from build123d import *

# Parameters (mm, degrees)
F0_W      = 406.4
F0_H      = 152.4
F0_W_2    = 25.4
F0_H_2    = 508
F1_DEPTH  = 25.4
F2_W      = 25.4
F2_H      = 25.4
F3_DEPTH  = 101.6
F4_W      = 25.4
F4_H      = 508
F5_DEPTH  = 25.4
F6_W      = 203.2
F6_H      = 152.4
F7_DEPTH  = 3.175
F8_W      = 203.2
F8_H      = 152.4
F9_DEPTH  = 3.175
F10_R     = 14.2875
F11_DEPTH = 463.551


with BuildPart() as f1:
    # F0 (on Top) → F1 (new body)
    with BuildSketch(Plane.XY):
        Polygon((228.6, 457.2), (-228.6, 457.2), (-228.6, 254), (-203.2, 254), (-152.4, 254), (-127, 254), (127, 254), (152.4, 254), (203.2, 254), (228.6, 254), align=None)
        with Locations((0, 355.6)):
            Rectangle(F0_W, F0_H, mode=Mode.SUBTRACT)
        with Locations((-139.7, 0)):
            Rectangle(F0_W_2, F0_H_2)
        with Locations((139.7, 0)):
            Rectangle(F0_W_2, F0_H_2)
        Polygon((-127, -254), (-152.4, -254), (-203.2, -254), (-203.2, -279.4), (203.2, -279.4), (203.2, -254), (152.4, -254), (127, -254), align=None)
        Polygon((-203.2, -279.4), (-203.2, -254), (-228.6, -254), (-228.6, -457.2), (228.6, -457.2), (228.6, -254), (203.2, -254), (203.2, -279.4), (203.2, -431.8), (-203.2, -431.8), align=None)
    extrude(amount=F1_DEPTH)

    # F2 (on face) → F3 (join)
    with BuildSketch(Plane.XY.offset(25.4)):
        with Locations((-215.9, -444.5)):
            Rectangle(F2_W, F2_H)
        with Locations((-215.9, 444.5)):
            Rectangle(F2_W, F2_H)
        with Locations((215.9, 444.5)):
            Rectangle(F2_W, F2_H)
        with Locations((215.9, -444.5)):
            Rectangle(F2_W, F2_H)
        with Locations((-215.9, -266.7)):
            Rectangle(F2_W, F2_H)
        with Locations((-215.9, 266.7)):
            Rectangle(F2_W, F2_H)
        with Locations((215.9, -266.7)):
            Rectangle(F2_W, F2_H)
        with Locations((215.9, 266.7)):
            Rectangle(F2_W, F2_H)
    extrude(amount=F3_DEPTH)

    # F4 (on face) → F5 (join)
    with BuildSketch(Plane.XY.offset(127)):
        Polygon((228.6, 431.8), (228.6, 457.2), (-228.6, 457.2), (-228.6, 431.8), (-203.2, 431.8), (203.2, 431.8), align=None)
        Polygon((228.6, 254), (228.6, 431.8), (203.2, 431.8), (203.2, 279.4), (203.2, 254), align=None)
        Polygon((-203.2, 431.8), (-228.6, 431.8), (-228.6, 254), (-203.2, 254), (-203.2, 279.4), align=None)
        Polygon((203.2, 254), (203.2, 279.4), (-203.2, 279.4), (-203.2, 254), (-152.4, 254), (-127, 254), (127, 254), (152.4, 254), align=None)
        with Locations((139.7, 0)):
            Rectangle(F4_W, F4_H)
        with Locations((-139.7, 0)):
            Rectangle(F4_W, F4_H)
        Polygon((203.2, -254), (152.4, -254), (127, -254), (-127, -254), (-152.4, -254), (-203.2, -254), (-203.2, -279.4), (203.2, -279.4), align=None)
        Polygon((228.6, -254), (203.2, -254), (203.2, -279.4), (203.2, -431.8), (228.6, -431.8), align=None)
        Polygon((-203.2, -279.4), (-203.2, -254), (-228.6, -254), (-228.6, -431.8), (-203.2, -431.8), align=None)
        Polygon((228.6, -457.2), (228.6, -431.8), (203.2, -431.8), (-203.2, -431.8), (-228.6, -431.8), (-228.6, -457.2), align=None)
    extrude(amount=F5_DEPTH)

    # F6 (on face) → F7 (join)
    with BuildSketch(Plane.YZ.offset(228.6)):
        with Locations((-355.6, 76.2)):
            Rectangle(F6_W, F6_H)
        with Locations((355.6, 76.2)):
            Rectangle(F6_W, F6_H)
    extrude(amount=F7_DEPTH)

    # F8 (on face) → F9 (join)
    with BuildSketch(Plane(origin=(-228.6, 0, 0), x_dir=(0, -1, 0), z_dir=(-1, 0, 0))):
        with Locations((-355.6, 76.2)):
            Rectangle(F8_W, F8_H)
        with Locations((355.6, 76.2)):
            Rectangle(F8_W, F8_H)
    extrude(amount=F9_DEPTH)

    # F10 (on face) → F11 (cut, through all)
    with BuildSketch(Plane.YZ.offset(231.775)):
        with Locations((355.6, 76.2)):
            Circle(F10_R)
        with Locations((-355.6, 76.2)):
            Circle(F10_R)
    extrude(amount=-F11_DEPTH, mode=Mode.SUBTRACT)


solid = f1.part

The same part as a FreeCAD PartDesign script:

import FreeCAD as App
import Part
import Sketcher
Q = App.Units.Quantity


def add_polygon(sketch, points):
    """Adds a closed chain of lines whose ends are joined by coincident constraints."""
    first, n = sketch.GeometryCount, len(points)
    for a, b in zip(points, points[1:] + points[:1]):
        sketch.addGeometry(Part.LineSegment(App.Vector(*a, 0), App.Vector(*b, 0)), False)
    for i in range(n):
        sketch.addConstraint(Sketcher.Constraint("Coincident", first + i, 2, first + (i + 1) % n, 1))

doc = App.newDocument("Part")
body = doc.addObject("PartDesign::Body", "Body")

# Sketch on XY plane
sketch1 = body.newObject("Sketcher::SketchObject", "Sketch")
sketch1.AttachmentSupport = (doc.getObject("XY_Plane"), [""])
sketch1.MapMode = "FlatFace"
add_polygon(sketch1, [(229, 254), (229, 457), (-229, 457), (-229, 254), (-152, 254), (-152, -254), (-229, -254), (-229, -457), (229, -457), (229, -254), (152, -254), (152, 254)])  # lines 0-11
add_polygon(sketch1, [(203, -279), (203, -432), (-203, -432), (-203, -279)])  # lines 12-15
add_polygon(sketch1, [(-127, 254), (127, 254), (127, -254), (-127, -254)])  # lines 16-19
add_polygon(sketch1, [(203, 279), (-203, 279), (-203, 432), (203, 432)])  # lines 20-23
sketch1.addConstraint([
    Sketcher.Constraint("Vertical", 0),
    Sketcher.Constraint("Horizontal", 1),
    Sketcher.Constraint("Vertical", 2),
    Sketcher.Constraint("Horizontal", 3),
    Sketcher.Constraint("Vertical", 4),
    Sketcher.Constraint("Horizontal", 5),
    Sketcher.Constraint("Vertical", 6),
    Sketcher.Constraint("Horizontal", 7),
    Sketcher.Constraint("Vertical", 8),
    Sketcher.Constraint("Horizontal", 9),
    Sketcher.Constraint("Vertical", 10),
    Sketcher.Constraint("Horizontal", 11),
    Sketcher.Constraint("Vertical", 12),
    Sketcher.Constraint("Horizontal", 13),
    Sketcher.Constraint("Vertical", 14),
    Sketcher.Constraint("Horizontal", 15),
    Sketcher.Constraint("Horizontal", 16),
    Sketcher.Constraint("Vertical", 17),
    Sketcher.Constraint("Horizontal", 18),
    Sketcher.Constraint("Vertical", 19),
    Sketcher.Constraint("Horizontal", 20),
    Sketcher.Constraint("Vertical", 21),
    Sketcher.Constraint("Horizontal", 22),
    Sketcher.Constraint("Vertical", 23),
    Sketcher.Constraint("Symmetric", 0, 2, 6, 2, -1, 1),
    Sketcher.Constraint("Symmetric", 2, 2, 8, 2, -1, 1),
    Sketcher.Constraint("Symmetric", 4, 2, 10, 2, -1, 1),
    Sketcher.Constraint("Symmetric", 16, 2, 18, 2, -1, 1),
    Sketcher.Constraint("Symmetric", 15, 2, 20, 2, -1, 1),
    Sketcher.Constraint("Symmetric", 13, 2, 22, 2, -1, 1),
    Sketcher.Constraint("Symmetric", 5, 2, 8, 2, -2),
    Sketcher.Constraint("Horizontal", 11, 2, 16, 2),
    Sketcher.Constraint("Vertical", 14, 2, 20, 2),
    Sketcher.Constraint("DistanceX", 1, 2, 1, 1, Q("18 in")),
    Sketcher.Constraint("DistanceX", 3, 1, 3, 2, Q("3 in")),
    Sketcher.Constraint("DistanceX", 13, 2, 13, 1, Q("16 in")),
    Sketcher.Constraint("DistanceX", 16, 1, 16, 2, Q("10 in")),
    Sketcher.Constraint("DistanceY", 0, 1, 0, 2, Q("8 in")),
    Sketcher.Constraint("DistanceY", 4, 2, 4, 1, Q("20 in")),
    Sketcher.Constraint("DistanceY", 12, 2, 12, 1, Q("6 in")),
    Sketcher.Constraint("DistanceY", 12, 2, -1, 1, Q("17 in")),
])
pad1 = body.newObject("PartDesign::Pad", "Pad")
pad1.Profile = sketch1
pad1.Length = Q("1 in")

# Sketch on XY plane
sketch2 = body.newObject("Sketcher::SketchObject", "Sketch001")
sketch2.AttachmentSupport = (doc.getObject("XY_Plane"), [""])
sketch2.MapMode = "FlatFace"
sketch2.AttachmentOffset = App.Placement(App.Vector(0, 0, 1 * 25.4), App.Rotation())
add_polygon(sketch2, [(-229, -432), (-229, -457), (-203, -457), (-203, -432)])  # lines 0-3
add_polygon(sketch2, [(-229, 457), (-229, 432), (-203, 432), (-203, 457)])  # lines 4-7
add_polygon(sketch2, [(203, 457), (203, 432), (229, 432), (229, 457)])  # lines 8-11
add_polygon(sketch2, [(203, -432), (203, -457), (229, -457), (229, -432)])  # lines 12-15
add_polygon(sketch2, [(-229, -254), (-229, -279), (-203, -279), (-203, -254)])  # lines 16-19
add_polygon(sketch2, [(-229, 279), (-229, 254), (-203, 254), (-203, 279)])  # lines 20-23
add_polygon(sketch2, [(203, -254), (203, -279), (229, -279), (229, -254)])  # lines 24-27
add_polygon(sketch2, [(203, 279), (203, 254), (229, 254), (229, 279)])  # lines 28-31
sketch2.addConstraint([
    Sketcher.Constraint("Vertical", 0),
    Sketcher.Constraint("Horizontal", 1),
    Sketcher.Constraint("Vertical", 2),
    Sketcher.Constraint("Horizontal", 3),
    Sketcher.Constraint("Vertical", 4),
    Sketcher.Constraint("Horizontal", 5),
    Sketcher.Constraint("Vertical", 6),
    Sketcher.Constraint("Horizontal", 7),
    Sketcher.Constraint("Vertical", 8),
    Sketcher.Constraint("Horizontal", 9),
    Sketcher.Constraint("Vertical", 10),
    Sketcher.Constraint("Horizontal", 11),
    Sketcher.Constraint("Vertical", 12),
    Sketcher.Constraint("Horizontal", 13),
    Sketcher.Constraint("Vertical", 14),
    Sketcher.Constraint("Horizontal", 15),
    Sketcher.Constraint("Vertical", 16),
    Sketcher.Constraint("Horizontal", 17),
    Sketcher.Constraint("Vertical", 18),
    Sketcher.Constraint("Horizontal", 19),
    Sketcher.Constraint("Vertical", 20),
    Sketcher.Constraint("Horizontal", 21),
    Sketcher.Constraint("Vertical", 22),
    Sketcher.Constraint("Horizontal", 23),
    Sketcher.Constraint("Vertical", 24),
    Sketcher.Constraint("Horizontal", 25),
    Sketcher.Constraint("Vertical", 26),
    Sketcher.Constraint("Horizontal", 27),
    Sketcher.Constraint("Vertical", 28),
    Sketcher.Constraint("Horizontal", 29),
    Sketcher.Constraint("Vertical", 30),
    Sketcher.Constraint("Horizontal", 31),
    Sketcher.Constraint("Symmetric", 2, 2, 8, 2, -1, 1),
    Sketcher.Constraint("Symmetric", 0, 2, 10, 2, -1, 1),
    Sketcher.Constraint("Symmetric", 6, 2, 12, 2, -1, 1),
    Sketcher.Constraint("Symmetric", 4, 2, 14, 2, -1, 1),
    Sketcher.Constraint("Symmetric", 22, 2, 24, 2, -1, 1),
    Sketcher.Constraint("Symmetric", 20, 2, 26, 2, -1, 1),
    Sketcher.Constraint("Symmetric", 18, 2, 28, 2, -1, 1),
    Sketcher.Constraint("Symmetric", 16, 2, 30, 2, -1, 1),
    Sketcher.Constraint("Symmetric", 5, 2, 8, 2, -2),
    Sketcher.Constraint("Symmetric", 7, 2, 10, 2, -2),
    Sketcher.Constraint("Symmetric", 17, 2, 24, 2, -2),
    Sketcher.Constraint("Symmetric", 19, 2, 26, 2, -2),
    Sketcher.Constraint("Vertical", 7, 2, 16, 2),
    Sketcher.Constraint("Vertical", 6, 2, 17, 2),
    Sketcher.Constraint("Equal", 31, 0),
    Sketcher.Constraint("Equal", 14, 16),
    Sketcher.Constraint("DistanceX", 1, 1, 1, 2, Q("1 in")),
    Sketcher.Constraint("DistanceX", 0, 2, -1, 1, Q("9 in")),
    Sketcher.Constraint("DistanceY", 0, 2, -1, 1, Q("18 in")),
    Sketcher.Constraint("DistanceY", 16, 2, -1, 1, Q("11 in")),
])
pad2 = body.newObject("PartDesign::Pad", "Pad001")
pad2.Profile = sketch2
pad2.Length = Q("4 in")

# Sketch on XY plane
sketch3 = body.newObject("Sketcher::SketchObject", "Sketch002")
sketch3.AttachmentSupport = (doc.getObject("XY_Plane"), [""])
sketch3.MapMode = "FlatFace"
sketch3.AttachmentOffset = App.Placement(App.Vector(0, 0, 5 * 25.4), App.Rotation())
add_polygon(sketch3, [(229, 457), (-229, 457), (-229, 254), (-152, 254), (-152, -254), (-229, -254), (-229, -457), (229, -457), (229, -254), (152, -254), (152, 254), (229, 254)])  # lines 0-11
add_polygon(sketch3, [(-203, -432), (-203, -279), (203, -279), (203, -432)])  # lines 12-15
add_polygon(sketch3, [(-127, -254), (-127, 254), (127, 254), (127, -254)])  # lines 16-19
add_polygon(sketch3, [(-203, 279), (-203, 432), (203, 432), (203, 279)])  # lines 20-23
sketch3.addConstraint([
    Sketcher.Constraint("Horizontal", 0),
    Sketcher.Constraint("Vertical", 1),
    Sketcher.Constraint("Horizontal", 2),
    Sketcher.Constraint("Vertical", 3),
    Sketcher.Constraint("Horizontal", 4),
    Sketcher.Constraint("Vertical", 5),
    Sketcher.Constraint("Horizontal", 6),
    Sketcher.Constraint("Vertical", 7),
    Sketcher.Constraint("Horizontal", 8),
    Sketcher.Constraint("Vertical", 9),
    Sketcher.Constraint("Horizontal", 10),
    Sketcher.Constraint("Vertical", 11),
    Sketcher.Constraint("Vertical", 12),
    Sketcher.Constraint("Horizontal", 13),
    Sketcher.Constraint("Vertical", 14),
    Sketcher.Constraint("Horizontal", 15),
    Sketcher.Constraint("Vertical", 16),
    Sketcher.Constraint("Horizontal", 17),
    Sketcher.Constraint("Vertical", 18),
    Sketcher.Constraint("Horizontal", 19),
    Sketcher.Constraint("Vertical", 20),
    Sketcher.Constraint("Horizontal", 21),
    Sketcher.Constraint("Vertical", 22),
    Sketcher.Constraint("Horizontal", 23),
    Sketcher.Constraint("Symmetric", 0, 2, 6, 2, -1, 1),
    Sketcher.Constraint("Symmetric", 2, 2, 8, 2, -1, 1),
    Sketcher.Constraint("Symmetric", 4, 2, 10, 2, -1, 1),
    Sketcher.Constraint("Symmetric", 16, 2, 18, 2, -1, 1),
    Sketcher.Constraint("Symmetric", 14, 2, 20, 2, -1, 1),
    Sketcher.Constraint("Symmetric", 12, 2, 22, 2, -1, 1),
    Sketcher.Constraint("Symmetric", 4, 2, 7, 2, -2),
    Sketcher.Constraint("Horizontal", 10, 2, 16, 2),
    Sketcher.Constraint("Vertical", 15, 2, 20, 2),
    Sketcher.Constraint("DistanceX", 0, 2, 0, 1, Q("18 in")),
    Sketcher.Constraint("DistanceX", 2, 1, 2, 2, Q("3 in")),
    Sketcher.Constraint("DistanceX", 13, 1, 13, 2, Q("16 in")),
    Sketcher.Constraint("DistanceX", 17, 1, 17, 2, Q("10 in")),
    Sketcher.Constraint("DistanceY", 1, 2, 1, 1, Q("8 in")),
    Sketcher.Constraint("DistanceY", 3, 2, 3, 1, Q("20 in")),
    Sketcher.Constraint("DistanceY", 12, 1, 12, 2, Q("6 in")),
    Sketcher.Constraint("DistanceY", 12, 2, -1, 1, Q("11 in")),
])
pad3 = body.newObject("PartDesign::Pad", "Pad002")
pad3.Profile = sketch3
pad3.Length = Q("1 in")

# Sketch on YZ plane
sketch4 = body.newObject("Sketcher::SketchObject", "Sketch003")
sketch4.AttachmentSupport = (doc.getObject("YZ_Plane"), [""])
sketch4.MapMode = "FlatFace"
sketch4.AttachmentOffset = App.Placement(App.Vector(0, 0, 9 * 25.4), App.Rotation())
add_polygon(sketch4, [(-457, 152), (-457, 0), (-254, 0), (-254, 152)])  # lines 0-3
add_polygon(sketch4, [(254, 152), (254, 0), (457, 0), (457, 152)])  # lines 4-7
sketch4.addConstraint([
    Sketcher.Constraint("Vertical", 0),
    Sketcher.Constraint("Horizontal", 1),
    Sketcher.Constraint("Vertical", 2),
    Sketcher.Constraint("Horizontal", 3),
    Sketcher.Constraint("Vertical", 4),
    Sketcher.Constraint("Horizontal", 5),
    Sketcher.Constraint("Vertical", 6),
    Sketcher.Constraint("Horizontal", 7),
    Sketcher.Constraint("Symmetric", 1, 2, 4, 2, -1, 1),
    Sketcher.Constraint("Symmetric", 0, 2, 5, 2, -2),
    Sketcher.Constraint("Horizontal", 3, 2, 6, 2),
    Sketcher.Constraint("DistanceX", 1, 1, 1, 2, Q("8 in")),
    Sketcher.Constraint("DistanceY", 0, 2, 0, 1, Q("6 in")),
    Sketcher.Constraint("DistanceX", 0, 2, -1, 1, Q("18 in")),
])
pad4 = body.newObject("PartDesign::Pad", "Pad003")
pad4.Profile = sketch4
pad4.Length = Q("0.125 in")

# Sketch on YZ plane
sketch5 = body.newObject("Sketcher::SketchObject", "Sketch004")
sketch5.AttachmentSupport = (doc.getObject("YZ_Plane"), [""])
sketch5.MapMode = "FlatFace"
sketch5.AttachmentOffset = App.Placement(App.Vector(0, 0, -9 * 25.4), App.Rotation())
add_polygon(sketch5, [(457, 152), (457, 0), (254, 0), (254, 152)])  # lines 0-3
add_polygon(sketch5, [(-254, 152), (-254, 0), (-457, 0), (-457, 152)])  # lines 4-7
sketch5.addConstraint([
    Sketcher.Constraint("Vertical", 0),
    Sketcher.Constraint("Horizontal", 1),
    Sketcher.Constraint("Vertical", 2),
    Sketcher.Constraint("Horizontal", 3),
    Sketcher.Constraint("Vertical", 4),
    Sketcher.Constraint("Horizontal", 5),
    Sketcher.Constraint("Vertical", 6),
    Sketcher.Constraint("Horizontal", 7),
    Sketcher.Constraint("Symmetric", 1, 2, 4, 2, -1, 1),
    Sketcher.Constraint("Symmetric", 0, 2, 5, 2, -2),
    Sketcher.Constraint("Horizontal", 3, 2, 6, 2),
    Sketcher.Constraint("DistanceX", 1, 2, 1, 1, Q("8 in")),
    Sketcher.Constraint("DistanceY", 0, 2, 0, 1, Q("6 in")),
    Sketcher.Constraint("DistanceX", -1, 1, 0, 2, Q("18 in")),
])
pad5 = body.newObject("PartDesign::Pad", "Pad004")
pad5.Profile = sketch5
pad5.Length = Q("0.125 in")
pad5.Reversed = True

# Sketch on YZ plane
sketch6 = body.newObject("Sketcher::SketchObject", "Sketch005")
sketch6.AttachmentSupport = (doc.getObject("YZ_Plane"), [""])
sketch6.MapMode = "FlatFace"
sketch6.AttachmentOffset = App.Placement(App.Vector(0, 0, 9.125 * 25.4), App.Rotation())
sketch6.addGeometry([
    Part.Circle(App.Vector(356, 76, 0), App.Vector(0, 0, 1), 14),
    Part.Circle(App.Vector(-356, 76, 0), App.Vector(0, 0, 1), 14),
], False)
sketch6.addConstraint([
    Sketcher.Constraint("Equal", 0, 1),
    Sketcher.Constraint("Symmetric", 0, 3, 1, 3, -2),
    Sketcher.Constraint("Diameter", 0, Q("1.125 in")),
    Sketcher.Constraint("DistanceX", -1, 1, 0, 3, Q("14 in")),
    Sketcher.Constraint("DistanceY", -1, 1, 0, 3, Q("3 in")),
])
pocket1 = body.newObject("PartDesign::Pocket", "Pocket")
pocket1.Profile = sketch6
pocket1.Type = "ThroughAll"

doc.recompute()
